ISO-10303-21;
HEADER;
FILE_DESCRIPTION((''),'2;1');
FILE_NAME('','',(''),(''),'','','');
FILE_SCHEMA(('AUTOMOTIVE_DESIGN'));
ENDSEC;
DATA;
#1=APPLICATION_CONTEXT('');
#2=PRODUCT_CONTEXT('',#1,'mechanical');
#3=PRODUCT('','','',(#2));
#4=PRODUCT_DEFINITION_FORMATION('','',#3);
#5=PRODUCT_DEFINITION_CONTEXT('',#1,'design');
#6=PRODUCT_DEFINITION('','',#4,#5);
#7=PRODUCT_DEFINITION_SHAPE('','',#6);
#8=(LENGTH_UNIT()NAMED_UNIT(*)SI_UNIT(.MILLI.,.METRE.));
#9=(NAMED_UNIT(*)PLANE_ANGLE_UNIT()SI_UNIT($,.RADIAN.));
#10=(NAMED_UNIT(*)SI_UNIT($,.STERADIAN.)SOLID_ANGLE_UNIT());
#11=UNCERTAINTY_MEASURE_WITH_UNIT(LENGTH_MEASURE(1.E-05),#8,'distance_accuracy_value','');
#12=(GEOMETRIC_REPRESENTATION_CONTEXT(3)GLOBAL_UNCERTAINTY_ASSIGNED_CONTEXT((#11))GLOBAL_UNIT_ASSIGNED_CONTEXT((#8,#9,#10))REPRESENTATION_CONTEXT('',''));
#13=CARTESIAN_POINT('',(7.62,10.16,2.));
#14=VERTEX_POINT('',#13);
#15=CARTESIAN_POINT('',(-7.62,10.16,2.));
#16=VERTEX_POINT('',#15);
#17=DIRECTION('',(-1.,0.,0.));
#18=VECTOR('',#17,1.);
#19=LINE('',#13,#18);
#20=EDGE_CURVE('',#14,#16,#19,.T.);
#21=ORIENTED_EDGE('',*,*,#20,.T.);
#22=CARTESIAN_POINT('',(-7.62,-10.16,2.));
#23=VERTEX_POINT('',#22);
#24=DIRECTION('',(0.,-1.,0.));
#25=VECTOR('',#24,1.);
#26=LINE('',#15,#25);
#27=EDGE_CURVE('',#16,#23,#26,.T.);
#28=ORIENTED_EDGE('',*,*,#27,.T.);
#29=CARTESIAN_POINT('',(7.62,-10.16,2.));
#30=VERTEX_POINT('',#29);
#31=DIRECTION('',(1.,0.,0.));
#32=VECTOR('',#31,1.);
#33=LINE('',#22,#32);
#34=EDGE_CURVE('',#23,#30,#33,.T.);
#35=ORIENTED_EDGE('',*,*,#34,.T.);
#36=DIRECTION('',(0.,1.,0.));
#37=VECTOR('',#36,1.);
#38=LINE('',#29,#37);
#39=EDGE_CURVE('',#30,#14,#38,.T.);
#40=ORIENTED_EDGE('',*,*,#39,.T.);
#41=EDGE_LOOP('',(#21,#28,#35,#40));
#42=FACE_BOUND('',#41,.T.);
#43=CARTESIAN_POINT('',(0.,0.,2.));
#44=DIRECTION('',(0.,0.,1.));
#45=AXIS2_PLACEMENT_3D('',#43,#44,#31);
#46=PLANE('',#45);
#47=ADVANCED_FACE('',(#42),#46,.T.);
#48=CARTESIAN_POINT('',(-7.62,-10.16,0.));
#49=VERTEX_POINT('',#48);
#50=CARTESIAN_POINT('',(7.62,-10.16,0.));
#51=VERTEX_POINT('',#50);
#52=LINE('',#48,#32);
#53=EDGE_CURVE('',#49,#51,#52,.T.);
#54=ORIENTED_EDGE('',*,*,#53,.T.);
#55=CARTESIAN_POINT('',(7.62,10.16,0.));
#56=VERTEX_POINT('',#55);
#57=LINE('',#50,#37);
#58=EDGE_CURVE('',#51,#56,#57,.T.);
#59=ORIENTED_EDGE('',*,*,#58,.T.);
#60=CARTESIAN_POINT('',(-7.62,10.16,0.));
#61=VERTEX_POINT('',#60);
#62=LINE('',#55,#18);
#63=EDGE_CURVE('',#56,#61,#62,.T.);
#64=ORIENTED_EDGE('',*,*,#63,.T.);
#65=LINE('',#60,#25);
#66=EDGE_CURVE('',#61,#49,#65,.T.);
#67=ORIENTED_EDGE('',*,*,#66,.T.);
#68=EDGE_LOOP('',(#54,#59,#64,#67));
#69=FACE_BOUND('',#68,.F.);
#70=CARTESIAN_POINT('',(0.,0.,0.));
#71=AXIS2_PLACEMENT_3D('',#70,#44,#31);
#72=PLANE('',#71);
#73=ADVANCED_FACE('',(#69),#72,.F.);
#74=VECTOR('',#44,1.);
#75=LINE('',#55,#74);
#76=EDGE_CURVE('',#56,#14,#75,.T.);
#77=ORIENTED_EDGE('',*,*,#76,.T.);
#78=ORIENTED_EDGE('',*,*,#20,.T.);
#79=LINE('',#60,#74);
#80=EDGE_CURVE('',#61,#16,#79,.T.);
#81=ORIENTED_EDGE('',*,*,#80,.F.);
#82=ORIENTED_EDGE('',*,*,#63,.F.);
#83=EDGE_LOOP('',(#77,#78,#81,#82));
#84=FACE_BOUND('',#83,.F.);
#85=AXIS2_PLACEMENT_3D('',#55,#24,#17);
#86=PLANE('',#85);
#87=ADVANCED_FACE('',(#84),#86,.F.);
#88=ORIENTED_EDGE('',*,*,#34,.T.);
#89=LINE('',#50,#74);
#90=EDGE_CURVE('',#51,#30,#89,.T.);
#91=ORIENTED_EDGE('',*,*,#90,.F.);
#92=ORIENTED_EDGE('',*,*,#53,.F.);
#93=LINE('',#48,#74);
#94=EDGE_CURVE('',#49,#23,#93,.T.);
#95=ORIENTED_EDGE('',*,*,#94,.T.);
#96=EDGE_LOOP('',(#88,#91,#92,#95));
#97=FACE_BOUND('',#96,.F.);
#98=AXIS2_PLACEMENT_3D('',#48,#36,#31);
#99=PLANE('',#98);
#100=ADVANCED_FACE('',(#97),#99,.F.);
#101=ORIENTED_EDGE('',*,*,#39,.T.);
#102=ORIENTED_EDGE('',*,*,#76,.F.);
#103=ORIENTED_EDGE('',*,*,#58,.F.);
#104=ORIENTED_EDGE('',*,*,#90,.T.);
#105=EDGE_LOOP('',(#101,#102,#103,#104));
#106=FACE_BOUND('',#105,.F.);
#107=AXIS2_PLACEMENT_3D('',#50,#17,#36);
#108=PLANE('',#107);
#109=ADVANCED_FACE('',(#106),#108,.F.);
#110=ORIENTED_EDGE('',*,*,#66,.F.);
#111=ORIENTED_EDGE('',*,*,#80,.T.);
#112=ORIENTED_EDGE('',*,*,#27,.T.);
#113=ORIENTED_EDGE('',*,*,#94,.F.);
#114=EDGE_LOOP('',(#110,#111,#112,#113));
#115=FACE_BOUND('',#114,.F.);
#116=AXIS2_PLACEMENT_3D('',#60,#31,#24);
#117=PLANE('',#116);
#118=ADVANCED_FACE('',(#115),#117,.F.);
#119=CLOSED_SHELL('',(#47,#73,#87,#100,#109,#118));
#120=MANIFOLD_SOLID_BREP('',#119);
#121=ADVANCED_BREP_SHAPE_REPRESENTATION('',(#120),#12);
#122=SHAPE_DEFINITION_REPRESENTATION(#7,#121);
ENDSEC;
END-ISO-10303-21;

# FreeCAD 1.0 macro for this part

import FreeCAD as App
import Part
import Sketcher
Q = App.Units.Quantity

doc = App.newDocument("Part")
params = doc.addObject("Spreadsheet::Sheet", "Params")
for row, (alias, value) in enumerate([
    ("sketch1_width", "0.6 in"),
    ("sketch1_height", "0.8 in"),
    ("pad1_length", "2 mm"),
], start=1):
    params.set(f"A{row}", alias)
    params.set(f"B{row}", "=" + value)
    params.setAlias(f"B{row}", alias)

body = doc.addObject("PartDesign::Body", "Body")

sketch1 = body.newObject("Sketcher::SketchObject", "Sketch")
sketch1.AttachmentSupport = (doc.getObject("XY_Plane"), [""])
sketch1.MapMode = "FlatFace"
sketch1.addGeometry(Part.LineSegment(App.Vector(-8, 10, 0), App.Vector(-8, -10, 0)), False)
sketch1.addGeometry(Part.LineSegment(App.Vector(-8, -10, 0), App.Vector(8, -10, 0)), False)
sketch1.addGeometry(Part.LineSegment(App.Vector(8, -10, 0), App.Vector(8, 10, 0)), False)
sketch1.addGeometry(Part.LineSegment(App.Vector(8, 10, 0), App.Vector(-8, 10, 0)), False)
sketch1.addConstraint(Sketcher.Constraint("Coincident", 0, 2, 1, 1))
sketch1.addConstraint(Sketcher.Constraint("Coincident", 1, 2, 2, 1))
sketch1.addConstraint(Sketcher.Constraint("Coincident", 2, 2, 3, 1))
sketch1.addConstraint(Sketcher.Constraint("Coincident", 3, 2, 0, 1))
sketch1.addConstraint(Sketcher.Constraint("Vertical", 0))
sketch1.addConstraint(Sketcher.Constraint("Horizontal", 1))
sketch1.addConstraint(Sketcher.Constraint("Vertical", 2))
sketch1.addConstraint(Sketcher.Constraint("Horizontal", 3))
sketch1.addConstraint(Sketcher.Constraint("Symmetric", 0, 2, 2, 2, -1, 1))
sketch1.addConstraint(Sketcher.Constraint("DistanceX", 1, 1, 1, 2, Q("0.6 in")))
sketch1.addConstraint(Sketcher.Constraint("DistanceY", 0, 2, 0, 1, Q("0.8 in")))
sketch1.setExpression("Constraints[9]", "Params.sketch1_width")
sketch1.setExpression("Constraints[10]", "Params.sketch1_height")
pad1 = body.newObject("PartDesign::Pad", "Pad")
pad1.Profile = sketch1
pad1.setExpression("Length", "Params.pad1_length")

doc.recompute()
